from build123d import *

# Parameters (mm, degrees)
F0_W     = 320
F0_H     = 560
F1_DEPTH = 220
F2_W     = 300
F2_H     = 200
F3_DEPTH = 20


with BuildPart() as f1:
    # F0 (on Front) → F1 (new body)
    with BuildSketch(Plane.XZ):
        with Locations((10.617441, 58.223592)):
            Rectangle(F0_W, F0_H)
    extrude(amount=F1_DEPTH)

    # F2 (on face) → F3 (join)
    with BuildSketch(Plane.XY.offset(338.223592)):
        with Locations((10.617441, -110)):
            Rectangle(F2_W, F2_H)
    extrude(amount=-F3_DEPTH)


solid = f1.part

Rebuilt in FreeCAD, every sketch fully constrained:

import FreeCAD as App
import Part
import Sketcher
from FreeCAD import Vector


def add_polygon(sketch, points):
    """Adds a closed chain of lines whose ends are joined by coincident constraints."""
    first, n = sketch.GeometryCount, len(points)
    for a, b in zip(points, points[1:] + points[:1]):
        sketch.addGeometry(Part.LineSegment(App.Vector(*a, 0), App.Vector(*b, 0)), False)
    for i in range(n):
        sketch.addConstraint(Sketcher.Constraint("Coincident", first + i, 2, first + (i + 1) % n, 1))

doc = App.newDocument("Part")
body = doc.addObject("PartDesign::Body", "Body")

# Sketch on XZ plane
sketch1 = body.newObject("Sketcher::SketchObject", "Sketch")
sketch1.AttachmentSupport = (doc.getObject("XZ_Plane"), [""])
sketch1.MapMode = "FlatFace"
add_polygon(sketch1, [(-149, 338), (-149, -222), (171, -222), (171, 338)])  # lines 0-3
sketch1.addConstraint(Sketcher.Constraint("Vertical", 0))
sketch1.addConstraint(Sketcher.Constraint("Horizontal", 1))
sketch1.addConstraint(Sketcher.Constraint("Vertical", 2))
sketch1.addConstraint(Sketcher.Constraint("Horizontal", 3))
sketch1.addConstraint(Sketcher.Constraint("DistanceX", 1, 1, 1, 2, 320.0))
sketch1.addConstraint(Sketcher.Constraint("DistanceY", 0, 2, 0, 1, 560.0))
sketch1.addConstraint(Sketcher.Constraint("DistanceX", 0, 2, -1, 1, 149.382559))
sketch1.addConstraint(Sketcher.Constraint("DistanceY", 0, 2, -1, 1, 221.776408))
pad1 = body.newObject("PartDesign::Pad", "Pad")
pad1.Profile = sketch1
pad1.Length = 220

# Sketch on XY plane
sketch2 = body.newObject("Sketcher::SketchObject", "Sketch001")
sketch2.AttachmentSupport = (doc.getObject("XY_Plane"), [""])
sketch2.MapMode = "FlatFace"
sketch2.AttachmentOffset = App.Placement(Vector(0, 0, 338.223592), App.Rotation())
add_polygon(sketch2, [(-139, -10), (-139, -210), (161, -210), (161, -10)])  # lines 0-3
sketch2.addConstraint(Sketcher.Constraint("Vertical", 0))
sketch2.addConstraint(Sketcher.Constraint("Horizontal", 1))
sketch2.addConstraint(Sketcher.Constraint("Vertical", 2))
sketch2.addConstraint(Sketcher.Constraint("Horizontal", 3))
sketch2.addConstraint(Sketcher.Constraint("DistanceX", 1, 1, 1, 2, 300.0))
sketch2.addConstraint(Sketcher.Constraint("DistanceY", 0, 2, 0, 1, 200.0))
sketch2.addConstraint(Sketcher.Constraint("DistanceY", 0, 2, -1, 1, 210.0))
sketch2.addConstraint(Sketcher.Constraint("DistanceX", 0, 2, -1, 1, 139.382559))
pad2 = body.newObject("PartDesign::Pad", "Pad001")
pad2.Profile = sketch2
pad2.Length = 20
pad2.Reversed = True

doc.recompute()
